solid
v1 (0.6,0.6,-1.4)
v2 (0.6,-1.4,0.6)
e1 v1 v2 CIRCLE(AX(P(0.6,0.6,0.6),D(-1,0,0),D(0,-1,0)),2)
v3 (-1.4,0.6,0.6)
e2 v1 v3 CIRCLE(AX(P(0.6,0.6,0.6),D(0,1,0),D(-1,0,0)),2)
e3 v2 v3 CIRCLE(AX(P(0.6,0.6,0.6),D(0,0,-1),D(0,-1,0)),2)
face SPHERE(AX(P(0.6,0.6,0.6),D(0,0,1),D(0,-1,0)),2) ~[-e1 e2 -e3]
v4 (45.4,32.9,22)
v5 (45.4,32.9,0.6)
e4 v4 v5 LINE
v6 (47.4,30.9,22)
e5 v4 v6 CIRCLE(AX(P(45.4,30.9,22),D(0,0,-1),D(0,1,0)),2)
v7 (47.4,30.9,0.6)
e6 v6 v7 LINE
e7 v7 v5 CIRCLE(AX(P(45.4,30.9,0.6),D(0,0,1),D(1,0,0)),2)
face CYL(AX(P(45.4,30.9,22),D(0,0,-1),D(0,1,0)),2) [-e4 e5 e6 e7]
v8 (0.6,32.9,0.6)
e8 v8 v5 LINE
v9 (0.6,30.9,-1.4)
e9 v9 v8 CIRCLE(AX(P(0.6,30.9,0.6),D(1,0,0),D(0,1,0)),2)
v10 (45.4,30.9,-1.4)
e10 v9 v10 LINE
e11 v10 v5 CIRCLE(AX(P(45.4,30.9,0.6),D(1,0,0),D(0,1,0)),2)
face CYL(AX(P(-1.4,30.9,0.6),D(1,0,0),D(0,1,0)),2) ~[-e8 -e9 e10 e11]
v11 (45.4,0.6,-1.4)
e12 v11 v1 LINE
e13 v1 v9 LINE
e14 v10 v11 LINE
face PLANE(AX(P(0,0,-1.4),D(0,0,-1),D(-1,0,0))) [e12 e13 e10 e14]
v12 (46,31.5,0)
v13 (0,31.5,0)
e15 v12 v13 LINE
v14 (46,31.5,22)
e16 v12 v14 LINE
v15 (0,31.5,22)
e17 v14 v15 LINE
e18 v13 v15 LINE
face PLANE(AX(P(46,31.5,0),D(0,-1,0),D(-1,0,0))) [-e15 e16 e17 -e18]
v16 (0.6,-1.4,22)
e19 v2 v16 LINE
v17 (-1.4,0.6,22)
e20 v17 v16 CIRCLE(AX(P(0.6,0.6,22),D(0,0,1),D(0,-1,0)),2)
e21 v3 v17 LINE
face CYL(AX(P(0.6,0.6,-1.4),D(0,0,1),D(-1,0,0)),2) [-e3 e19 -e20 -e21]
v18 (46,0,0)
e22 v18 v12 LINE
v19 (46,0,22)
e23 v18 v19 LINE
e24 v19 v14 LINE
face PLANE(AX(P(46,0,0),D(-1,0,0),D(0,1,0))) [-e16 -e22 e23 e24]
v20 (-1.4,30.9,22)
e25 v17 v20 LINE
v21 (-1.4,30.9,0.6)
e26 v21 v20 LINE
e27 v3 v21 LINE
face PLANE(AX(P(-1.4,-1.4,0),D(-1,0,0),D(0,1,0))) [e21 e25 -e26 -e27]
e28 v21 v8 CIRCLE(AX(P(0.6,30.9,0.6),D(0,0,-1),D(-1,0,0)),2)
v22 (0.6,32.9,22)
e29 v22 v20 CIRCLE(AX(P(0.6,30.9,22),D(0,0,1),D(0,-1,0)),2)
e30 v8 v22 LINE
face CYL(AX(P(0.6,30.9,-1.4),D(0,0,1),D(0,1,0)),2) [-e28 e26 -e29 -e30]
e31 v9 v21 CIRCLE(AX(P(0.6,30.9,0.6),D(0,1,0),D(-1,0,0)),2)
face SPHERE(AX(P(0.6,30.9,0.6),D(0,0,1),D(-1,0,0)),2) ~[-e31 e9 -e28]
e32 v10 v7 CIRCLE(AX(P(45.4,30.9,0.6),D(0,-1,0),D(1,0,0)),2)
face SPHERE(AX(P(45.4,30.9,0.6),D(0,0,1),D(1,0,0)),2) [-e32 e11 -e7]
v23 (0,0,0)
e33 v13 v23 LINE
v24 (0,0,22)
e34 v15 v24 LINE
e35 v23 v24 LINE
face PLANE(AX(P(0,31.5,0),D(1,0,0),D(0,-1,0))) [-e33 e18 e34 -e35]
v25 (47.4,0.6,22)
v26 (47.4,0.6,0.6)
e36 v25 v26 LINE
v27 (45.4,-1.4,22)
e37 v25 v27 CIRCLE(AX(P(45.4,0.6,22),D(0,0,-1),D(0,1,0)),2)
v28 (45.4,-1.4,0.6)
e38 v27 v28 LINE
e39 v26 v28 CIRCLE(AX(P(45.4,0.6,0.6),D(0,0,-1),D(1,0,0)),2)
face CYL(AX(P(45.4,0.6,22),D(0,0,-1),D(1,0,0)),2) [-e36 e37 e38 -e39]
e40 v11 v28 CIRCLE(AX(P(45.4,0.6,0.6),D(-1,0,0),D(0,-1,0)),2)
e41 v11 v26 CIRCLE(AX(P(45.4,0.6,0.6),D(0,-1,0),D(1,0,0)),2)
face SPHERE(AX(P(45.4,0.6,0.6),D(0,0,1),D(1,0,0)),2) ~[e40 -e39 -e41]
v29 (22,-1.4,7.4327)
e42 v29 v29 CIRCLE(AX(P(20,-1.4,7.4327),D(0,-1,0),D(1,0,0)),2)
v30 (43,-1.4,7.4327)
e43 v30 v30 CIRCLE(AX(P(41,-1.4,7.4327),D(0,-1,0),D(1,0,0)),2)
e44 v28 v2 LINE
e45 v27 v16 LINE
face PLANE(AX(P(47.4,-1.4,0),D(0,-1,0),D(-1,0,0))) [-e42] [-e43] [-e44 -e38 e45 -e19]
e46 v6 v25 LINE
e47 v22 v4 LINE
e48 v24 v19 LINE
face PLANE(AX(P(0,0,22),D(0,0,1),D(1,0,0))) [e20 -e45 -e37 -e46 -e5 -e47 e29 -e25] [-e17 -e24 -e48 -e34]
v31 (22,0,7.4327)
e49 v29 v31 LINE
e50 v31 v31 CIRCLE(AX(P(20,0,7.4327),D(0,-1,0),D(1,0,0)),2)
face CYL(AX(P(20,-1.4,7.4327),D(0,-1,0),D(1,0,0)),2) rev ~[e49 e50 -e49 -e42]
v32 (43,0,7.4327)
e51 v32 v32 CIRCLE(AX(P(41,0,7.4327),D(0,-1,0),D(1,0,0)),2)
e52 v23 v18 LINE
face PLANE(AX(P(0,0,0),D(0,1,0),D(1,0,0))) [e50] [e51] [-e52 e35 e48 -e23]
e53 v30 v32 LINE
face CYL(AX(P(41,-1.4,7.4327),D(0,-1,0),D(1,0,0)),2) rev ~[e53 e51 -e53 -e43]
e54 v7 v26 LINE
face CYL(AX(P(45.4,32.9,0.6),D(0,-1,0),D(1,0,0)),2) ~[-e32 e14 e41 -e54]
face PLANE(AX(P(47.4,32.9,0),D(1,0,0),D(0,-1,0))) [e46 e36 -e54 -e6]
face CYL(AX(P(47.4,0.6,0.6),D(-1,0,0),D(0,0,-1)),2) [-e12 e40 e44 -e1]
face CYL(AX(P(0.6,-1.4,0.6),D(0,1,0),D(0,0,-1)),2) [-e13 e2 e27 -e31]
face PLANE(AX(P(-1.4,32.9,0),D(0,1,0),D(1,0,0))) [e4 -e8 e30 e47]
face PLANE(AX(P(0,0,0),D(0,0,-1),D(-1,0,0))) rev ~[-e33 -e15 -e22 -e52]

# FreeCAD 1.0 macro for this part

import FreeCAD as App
import Part
import Sketcher

V = App.Vector
Q = App.Units.Quantity


def edges_at(feature, points):
    """Names of the edges that pass closest to the given points."""
    edges = feature.Shape.Edges
    near = lambda p: min(range(len(edges)), key=lambda i: edges[i].distToShape(Part.Vertex(*p))[0])
    return sorted({f"Edge{near(p) + 1}" for p in points})

doc = App.newDocument("Part")
body = doc.addObject("PartDesign::Body", "Body")

sketch1 = body.newObject("Sketcher::SketchObject", "Sketch")
sketch1.AttachmentSupport = (doc.getObject("XY_Plane"), [""])
sketch1.MapMode = "FlatFace"
sketch1.addGeometry([
    Part.LineSegment(V(47, 33, 0), V(-1, 33, 0)),
    Part.LineSegment(V(-1, 33, 0), V(-1, -1, 0)),
    Part.LineSegment(V(-1, -1, 0), V(47, -1, 0)),
    Part.LineSegment(V(47, -1, 0), V(47, 33, 0)),
    Part.LineSegment(V(46, 0, 0), V(0, 0, 0)),
    Part.LineSegment(V(0, 0, 0), V(0, 32, 0)),
    Part.LineSegment(V(0, 32, 0), V(46, 32, 0)),
    Part.LineSegment(V(46, 32, 0), V(46, 0, 0)),
], False)
sketch1.addConstraint([
    Sketcher.Constraint("Coincident", 0, 2, 1, 1),
    Sketcher.Constraint("Coincident", 1, 2, 2, 1),
    Sketcher.Constraint("Coincident", 2, 2, 3, 1),
    Sketcher.Constraint("Coincident", 3, 2, 0, 1),
    Sketcher.Constraint("Coincident", 4, 2, 5, 1),
    Sketcher.Constraint("Coincident", 5, 2, 6, 1),
    Sketcher.Constraint("Coincident", 6, 2, 7, 1),
    Sketcher.Constraint("Coincident", 7, 2, 4, 1),
    Sketcher.Constraint("Horizontal", 0),
    Sketcher.Constraint("Vertical", 1),
    Sketcher.Constraint("Horizontal", 2),
    Sketcher.Constraint("Vertical", 3),
    Sketcher.Constraint("Horizontal", 4),
    Sketcher.Constraint("Vertical", 5),
    Sketcher.Constraint("Horizontal", 6),
    Sketcher.Constraint("Vertical", 7),
    Sketcher.Constraint("Coincident", 4, 2, -1, 1),
    Sketcher.Constraint("DistanceX", 4, 2, 4, 1, Q("46 mm")),
    Sketcher.Constraint("DistanceY", 5, 1, 5, 2, Q("31.5 mm")),
    Sketcher.Constraint("DistanceX", 0, 2, -1, 1, Q("1.4 mm")),
    Sketcher.Constraint("DistanceY", 1, 2, -1, 1, Q("1.4 mm")),
    Sketcher.Constraint("DistanceY", 5, 2, 0, 2, Q("1.4 mm")),
    Sketcher.Constraint("DistanceX", 6, 2, 3, 2, Q("1.4 mm")),
])
pad1 = body.newObject("PartDesign::Pad", "Pad")
pad1.Profile = sketch1
pad1.Length = 22

sketch2 = body.newObject("Sketcher::SketchObject", "Sketch001")
sketch2.AttachmentSupport = (doc.getObject("XY_Plane"), [""])
sketch2.MapMode = "FlatFace"
sketch2.addGeometry([
    Part.LineSegment(V(47, -1, 0), V(-1, -1, 0)),
    Part.LineSegment(V(-1, -1, 0), V(-1, 33, 0)),
    Part.LineSegment(V(-1, 33, 0), V(47, 33, 0)),
    Part.LineSegment(V(47, 33, 0), V(47, -1, 0)),
], False)
sketch2.addConstraint([
    Sketcher.Constraint("Coincident", 0, 2, 1, 1),
    Sketcher.Constraint("Coincident", 1, 2, 2, 1),
    Sketcher.Constraint("Coincident", 2, 2, 3, 1),
    Sketcher.Constraint("Coincident", 3, 2, 0, 1),
    Sketcher.Constraint("Horizontal", 0),
    Sketcher.Constraint("Vertical", 1),
    Sketcher.Constraint("Horizontal", 2),
    Sketcher.Constraint("Vertical", 3),
    Sketcher.Constraint("DistanceX", 0, 2, 0, 1, Q("48.8 mm")),
    Sketcher.Constraint("DistanceY", 1, 1, 1, 2, Q("34.3 mm")),
    Sketcher.Constraint("DistanceX", 0, 2, -1, 1, Q("1.4 mm")),
    Sketcher.Constraint("DistanceY", 0, 2, -1, 1, Q("1.4 mm")),
])
pad2 = body.newObject("PartDesign::Pad", "Pad001")
pad2.Profile = sketch2
pad2.Length = 1.4
pad2.Reversed = True

sketch3 = body.newObject("Sketcher::SketchObject", "Sketch002")
sketch3.AttachmentSupport = (doc.getObject("XZ_Plane"), [""])
sketch3.MapMode = "FlatFace"
sketch3.AttachmentOffset = App.Placement(V(0, 0, 1.4), App.Rotation())
sketch3.addGeometry([
    Part.Circle(V(20, 7.4, 0), V(0, 0, 1), 2),
    Part.Circle(V(41, 7.4, 0), V(0, 0, 1), 2),
], False)
sketch3.addConstraint([
    Sketcher.Constraint("Equal", 0, 1),
    Sketcher.Constraint("Horizontal", 0, 3, 1, 3),
    Sketcher.Constraint("Diameter", 0, Q("4 mm")),
    Sketcher.Constraint("DistanceX", -1, 1, 0, 3, Q("20 mm")),
    Sketcher.Constraint("DistanceX", -1, 1, 1, 3, Q("41 mm")),
    Sketcher.Constraint("DistanceY", -1, 1, 0, 3, Q("7.4327 mm")),
])
pocket1 = body.newObject("PartDesign::Pocket", "Pocket")
pocket1.Profile = sketch3
pocket1.Length = 1.4
doc.recompute()

fillet = body.newObject("PartDesign::Fillet", "Fillet")
fillet.Base = (pocket1, edges_at(pocket1, [
    (-1.4, -1.4, 10.3),
    (47.4, -1.4, 10.3),
    (47.4, 32.9, 10.3),
    (-1.4, 32.9, 10.3),
    (47.4, 15.75, -1.4),
    (23, -1.4, -1.4),
    (-1.4, 15.75, -1.4),
    (23, 32.9, -1.4),
]))
fillet.Radius = 2

doc.recompute()
